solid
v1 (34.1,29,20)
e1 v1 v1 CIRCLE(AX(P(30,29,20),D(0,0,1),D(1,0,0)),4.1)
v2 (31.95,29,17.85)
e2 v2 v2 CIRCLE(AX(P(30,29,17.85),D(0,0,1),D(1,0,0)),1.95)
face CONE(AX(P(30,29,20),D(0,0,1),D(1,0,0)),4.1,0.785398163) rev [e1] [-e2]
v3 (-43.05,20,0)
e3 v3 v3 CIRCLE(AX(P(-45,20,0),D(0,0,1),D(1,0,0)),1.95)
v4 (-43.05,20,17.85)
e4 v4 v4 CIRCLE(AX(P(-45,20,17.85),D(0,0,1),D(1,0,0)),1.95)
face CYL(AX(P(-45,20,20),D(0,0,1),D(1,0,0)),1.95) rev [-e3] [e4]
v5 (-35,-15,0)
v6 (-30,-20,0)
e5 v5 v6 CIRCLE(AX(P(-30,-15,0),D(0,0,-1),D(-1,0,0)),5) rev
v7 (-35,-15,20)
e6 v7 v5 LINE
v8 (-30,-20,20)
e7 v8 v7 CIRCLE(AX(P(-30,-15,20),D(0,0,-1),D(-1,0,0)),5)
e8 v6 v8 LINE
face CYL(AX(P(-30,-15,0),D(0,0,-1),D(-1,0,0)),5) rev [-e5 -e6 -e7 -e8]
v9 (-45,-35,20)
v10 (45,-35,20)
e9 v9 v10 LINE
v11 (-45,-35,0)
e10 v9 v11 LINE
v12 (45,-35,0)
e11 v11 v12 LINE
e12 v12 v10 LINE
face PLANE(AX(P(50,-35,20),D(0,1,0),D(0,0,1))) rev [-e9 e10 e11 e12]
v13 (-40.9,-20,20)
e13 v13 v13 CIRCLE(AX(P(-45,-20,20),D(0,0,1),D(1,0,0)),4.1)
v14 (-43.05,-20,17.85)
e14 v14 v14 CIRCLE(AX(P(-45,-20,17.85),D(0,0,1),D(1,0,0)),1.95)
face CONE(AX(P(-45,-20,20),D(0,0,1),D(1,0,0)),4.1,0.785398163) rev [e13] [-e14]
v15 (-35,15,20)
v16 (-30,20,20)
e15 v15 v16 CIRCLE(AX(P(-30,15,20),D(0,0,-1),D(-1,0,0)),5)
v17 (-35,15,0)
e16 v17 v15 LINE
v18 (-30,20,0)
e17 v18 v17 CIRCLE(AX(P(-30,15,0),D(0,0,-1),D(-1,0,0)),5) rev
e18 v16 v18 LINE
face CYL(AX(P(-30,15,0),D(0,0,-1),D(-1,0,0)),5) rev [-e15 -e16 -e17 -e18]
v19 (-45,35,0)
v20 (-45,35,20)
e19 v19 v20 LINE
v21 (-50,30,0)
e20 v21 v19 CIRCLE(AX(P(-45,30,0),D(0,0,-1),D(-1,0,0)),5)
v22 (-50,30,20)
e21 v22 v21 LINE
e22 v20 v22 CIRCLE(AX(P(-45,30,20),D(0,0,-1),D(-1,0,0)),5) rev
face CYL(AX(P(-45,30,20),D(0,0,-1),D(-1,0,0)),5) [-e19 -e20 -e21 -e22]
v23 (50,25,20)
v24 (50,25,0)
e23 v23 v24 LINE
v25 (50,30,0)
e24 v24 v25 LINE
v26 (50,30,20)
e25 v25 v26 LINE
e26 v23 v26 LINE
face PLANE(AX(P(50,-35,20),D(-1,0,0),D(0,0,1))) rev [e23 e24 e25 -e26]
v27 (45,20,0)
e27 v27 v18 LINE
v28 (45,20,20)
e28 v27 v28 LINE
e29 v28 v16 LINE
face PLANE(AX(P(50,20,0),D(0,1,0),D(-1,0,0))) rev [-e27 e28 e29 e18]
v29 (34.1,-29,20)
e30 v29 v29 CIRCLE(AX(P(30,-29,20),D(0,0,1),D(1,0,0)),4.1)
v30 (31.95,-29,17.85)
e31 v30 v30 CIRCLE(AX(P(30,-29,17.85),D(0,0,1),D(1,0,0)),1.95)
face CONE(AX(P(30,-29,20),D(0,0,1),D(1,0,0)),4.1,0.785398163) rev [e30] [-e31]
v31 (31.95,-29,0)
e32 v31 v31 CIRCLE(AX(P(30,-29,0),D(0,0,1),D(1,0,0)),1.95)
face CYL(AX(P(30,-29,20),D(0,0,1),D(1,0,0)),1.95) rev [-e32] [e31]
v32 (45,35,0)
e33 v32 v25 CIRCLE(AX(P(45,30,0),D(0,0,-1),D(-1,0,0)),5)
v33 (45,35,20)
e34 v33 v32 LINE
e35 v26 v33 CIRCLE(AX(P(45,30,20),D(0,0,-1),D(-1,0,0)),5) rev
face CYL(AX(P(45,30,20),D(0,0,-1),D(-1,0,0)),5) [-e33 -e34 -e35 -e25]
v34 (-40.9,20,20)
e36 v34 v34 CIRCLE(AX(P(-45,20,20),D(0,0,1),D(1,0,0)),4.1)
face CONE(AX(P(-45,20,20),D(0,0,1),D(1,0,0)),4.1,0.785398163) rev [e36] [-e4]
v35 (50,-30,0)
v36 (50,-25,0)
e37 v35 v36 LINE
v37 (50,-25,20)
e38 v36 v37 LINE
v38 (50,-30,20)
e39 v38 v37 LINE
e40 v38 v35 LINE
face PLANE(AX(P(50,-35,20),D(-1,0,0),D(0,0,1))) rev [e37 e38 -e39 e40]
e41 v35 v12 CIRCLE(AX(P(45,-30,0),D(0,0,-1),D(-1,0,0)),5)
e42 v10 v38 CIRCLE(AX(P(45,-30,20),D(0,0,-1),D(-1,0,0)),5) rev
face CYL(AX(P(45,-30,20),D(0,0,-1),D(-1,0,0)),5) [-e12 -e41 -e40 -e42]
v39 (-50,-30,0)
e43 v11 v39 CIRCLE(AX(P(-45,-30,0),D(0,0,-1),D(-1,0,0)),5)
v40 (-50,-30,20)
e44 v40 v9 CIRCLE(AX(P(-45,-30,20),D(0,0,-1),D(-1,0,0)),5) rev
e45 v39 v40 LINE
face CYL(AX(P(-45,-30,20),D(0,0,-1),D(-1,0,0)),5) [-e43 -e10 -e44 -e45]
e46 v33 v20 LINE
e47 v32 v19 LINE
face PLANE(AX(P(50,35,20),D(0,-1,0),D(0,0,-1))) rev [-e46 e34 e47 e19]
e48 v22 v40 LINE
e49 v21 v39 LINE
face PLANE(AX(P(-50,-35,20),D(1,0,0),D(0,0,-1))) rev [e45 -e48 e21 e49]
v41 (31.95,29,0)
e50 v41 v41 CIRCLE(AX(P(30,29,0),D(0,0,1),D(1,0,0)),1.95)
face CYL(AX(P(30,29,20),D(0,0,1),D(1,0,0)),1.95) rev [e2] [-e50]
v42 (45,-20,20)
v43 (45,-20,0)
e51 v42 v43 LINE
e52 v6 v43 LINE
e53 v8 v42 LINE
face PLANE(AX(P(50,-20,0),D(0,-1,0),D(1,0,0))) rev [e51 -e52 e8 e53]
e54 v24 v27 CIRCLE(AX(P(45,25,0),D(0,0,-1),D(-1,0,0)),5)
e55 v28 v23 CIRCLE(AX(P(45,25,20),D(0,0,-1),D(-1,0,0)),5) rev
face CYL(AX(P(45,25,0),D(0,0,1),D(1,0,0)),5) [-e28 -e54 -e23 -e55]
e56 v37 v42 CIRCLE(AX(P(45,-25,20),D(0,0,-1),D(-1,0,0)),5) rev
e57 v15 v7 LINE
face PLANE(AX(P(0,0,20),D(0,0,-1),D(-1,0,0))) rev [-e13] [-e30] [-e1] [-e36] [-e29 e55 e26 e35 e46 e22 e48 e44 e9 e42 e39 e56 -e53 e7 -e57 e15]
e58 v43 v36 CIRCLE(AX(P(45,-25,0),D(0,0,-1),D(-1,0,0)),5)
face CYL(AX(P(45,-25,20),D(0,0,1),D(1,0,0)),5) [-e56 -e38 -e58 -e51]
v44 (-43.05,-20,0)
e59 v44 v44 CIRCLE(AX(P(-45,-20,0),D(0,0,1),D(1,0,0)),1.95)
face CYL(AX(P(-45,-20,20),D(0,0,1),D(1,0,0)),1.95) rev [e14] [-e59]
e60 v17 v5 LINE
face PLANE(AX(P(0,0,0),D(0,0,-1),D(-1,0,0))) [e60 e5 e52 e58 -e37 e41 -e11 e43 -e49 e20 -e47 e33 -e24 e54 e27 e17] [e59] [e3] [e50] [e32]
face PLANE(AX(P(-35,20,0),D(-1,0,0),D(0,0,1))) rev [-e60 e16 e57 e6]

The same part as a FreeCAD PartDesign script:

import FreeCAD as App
import Part
import Sketcher

V = App.Vector
Q = App.Units.Quantity


def edges_at(feature, points):
    """Names of the edges that pass closest to the given points."""
    edges = feature.Shape.Edges
    near = lambda p: min(range(len(edges)), key=lambda i: edges[i].distToShape(Part.Vertex(*p))[0])
    return sorted({f"Edge{near(p) + 1}" for p in points})


def add_polygon(sketch, points):
    """Adds a closed chain of lines whose ends are joined by coincident constraints."""
    first, n = sketch.GeometryCount, len(points)
    for a, b in zip(points, points[1:] + points[:1]):
        sketch.addGeometry(Part.LineSegment(App.Vector(*a, 0), App.Vector(*b, 0)), False)
    for i in range(n):
        sketch.addConstraint(Sketcher.Constraint("Coincident", first + i, 2, first + (i + 1) % n, 1))

doc = App.newDocument("Part")
params = doc.addObject("Spreadsheet::Sheet", "Params")
for row, (alias, value) in enumerate([
    ("sketch1_width", "100 mm"),
    ("sketch1_height", "70 mm"),
    ("pad1_length", "20 mm"),
    ("sketch2_diameter", "3.9 mm"),
    ("hole_diameter", "3.9 mm"),
    ("hole_csink_diameter", "8.2 mm"),
    ("sketch3_width", "85 mm"),
    ("sketch3_height", "40 mm"),
    ("fillet_radius", "5 mm"),
], start=1):
    params.set(f"A{row}", alias)
    params.set(f"B{row}", "=" + value)
    params.setAlias(f"B{row}", alias)

body = doc.addObject("PartDesign::Body", "Body")

# Sketch on XY plane
sketch1 = body.newObject("Sketcher::SketchObject", "Sketch")
sketch1.AttachmentSupport = (doc.getObject("XY_Plane"), [""])
sketch1.MapMode = "FlatFace"
add_polygon(sketch1, [(-50, -35), (50, -35), (50, 35), (-50, 35)])  # lines 0-3
sketch1.addConstraint(Sketcher.Constraint("Horizontal", 0))
sketch1.addConstraint(Sketcher.Constraint("Vertical", 1))
sketch1.addConstraint(Sketcher.Constraint("Horizontal", 2))
sketch1.addConstraint(Sketcher.Constraint("Vertical", 3))
sketch1.addConstraint(Sketcher.Constraint("Symmetric", 0, 2, 2, 2, -1, 1))
sketch1.addConstraint(Sketcher.Constraint("DistanceX", 0, 1, 0, 2, Q("100 mm")))
sketch1.addConstraint(Sketcher.Constraint("DistanceY", 1, 1, 1, 2, Q("70 mm")))
sketch1.setExpression("Constraints[9]", "Params.sketch1_width")
sketch1.setExpression("Constraints[10]", "Params.sketch1_height")
pad1 = body.newObject("PartDesign::Pad", "Pad")
pad1.Profile = sketch1
pad1.setExpression("Length", "Params.pad1_length")

# Sketch on XY plane
sketch2 = body.newObject("Sketcher::SketchObject", "Sketch001")
sketch2.AttachmentSupport = (doc.getObject("XY_Plane"), [""])
sketch2.MapMode = "FlatFace"
sketch2.AttachmentOffset = App.Placement(V(0, 0, 20), App.Rotation())
sketch2.addGeometry(Part.Circle(V(-45, -20, 0), V(0, 0, 1), 1.9), False)
sketch2.addGeometry(Part.Circle(V(30, -29, 0), V(0, 0, 1), 1.9), False)
sketch2.addConstraint(Sketcher.Constraint("Equal", 0, 1))
sketch2.addConstraint(Sketcher.Constraint("Diameter", 0, Q("3.9 mm")))
sketch2.addConstraint(Sketcher.Constraint("DistanceX", 0, 3, -1, 1, Q("45 mm")))
sketch2.addConstraint(Sketcher.Constraint("DistanceY", 0, 3, -1, 1, Q("20 mm")))
sketch2.addConstraint(Sketcher.Constraint("DistanceX", -1, 1, 1, 3, Q("30 mm")))
sketch2.addConstraint(Sketcher.Constraint("DistanceY", 1, 3, -1, 1, Q("29 mm")))
sketch2.setExpression("Constraints[1]", "Params.sketch2_diameter")
doc.recompute()
hole = body.newObject("PartDesign::Hole", "Hole")
hole.Profile = sketch2
hole.ThreadType = "None"
hole.setExpression("Diameter", "Params.hole_diameter")
hole.DepthType = "ThroughAll"
hole.HoleCutType = "Countersink"
hole.setExpression("HoleCutDiameter", "Params.hole_csink_diameter")
hole.HoleCutCountersinkAngle = 90
doc.recompute()

mirrored = body.newObject("PartDesign::Mirrored", "Mirrored")
mirrored.Originals = [hole]
mirrored.MirrorPlane = (doc.getObject("XZ_Plane"), [""])
body.Tip = mirrored

# Sketch on XY plane
sketch3 = body.newObject("Sketcher::SketchObject", "Sketch002")
sketch3.AttachmentSupport = (doc.getObject("XY_Plane"), [""])
sketch3.MapMode = "FlatFace"
sketch3.AttachmentOffset = App.Placement(V(0, 0, 20), App.Rotation())
add_polygon(sketch3, [(-35, 20), (-35, -20), (50, -20), (50, 20)])  # lines 0-3
sketch3.addConstraint(Sketcher.Constraint("Vertical", 0))
sketch3.addConstraint(Sketcher.Constraint("Horizontal", 1))
sketch3.addConstraint(Sketcher.Constraint("Vertical", 2))
sketch3.addConstraint(Sketcher.Constraint("Horizontal", 3))
sketch3.addConstraint(Sketcher.Constraint("DistanceX", 1, 1, 1, 2, Q("85 mm")))
sketch3.addConstraint(Sketcher.Constraint("DistanceY", 0, 2, 0, 1, Q("40 mm")))
sketch3.addConstraint(Sketcher.Constraint("DistanceX", 0, 2, -1, 1, Q("35 mm")))
sketch3.addConstraint(Sketcher.Constraint("DistanceY", 0, 2, -1, 1, Q("20 mm")))
sketch3.setExpression("Constraints[8]", "Params.sketch3_width")
sketch3.setExpression("Constraints[9]", "Params.sketch3_height")
pocket1 = body.newObject("PartDesign::Pocket", "Pocket")
pocket1.Profile = sketch3
pocket1.Type = "ThroughAll"
doc.recompute()

fillet = body.newObject("PartDesign::Fillet", "Fillet")
fillet.Base = (pocket1, edges_at(pocket1, [
    (50, 20, 10),
    (50, -20, 10),
    (-35, -20, 10),
    (-35, 20, 10),
    (50, 35, 10),
    (50, -35, 10),
    (-50, -35, 10),
    (-50, 35, 10),
]))
fillet.setExpression("Radius", "Params.fillet_radius")

doc.recompute()
